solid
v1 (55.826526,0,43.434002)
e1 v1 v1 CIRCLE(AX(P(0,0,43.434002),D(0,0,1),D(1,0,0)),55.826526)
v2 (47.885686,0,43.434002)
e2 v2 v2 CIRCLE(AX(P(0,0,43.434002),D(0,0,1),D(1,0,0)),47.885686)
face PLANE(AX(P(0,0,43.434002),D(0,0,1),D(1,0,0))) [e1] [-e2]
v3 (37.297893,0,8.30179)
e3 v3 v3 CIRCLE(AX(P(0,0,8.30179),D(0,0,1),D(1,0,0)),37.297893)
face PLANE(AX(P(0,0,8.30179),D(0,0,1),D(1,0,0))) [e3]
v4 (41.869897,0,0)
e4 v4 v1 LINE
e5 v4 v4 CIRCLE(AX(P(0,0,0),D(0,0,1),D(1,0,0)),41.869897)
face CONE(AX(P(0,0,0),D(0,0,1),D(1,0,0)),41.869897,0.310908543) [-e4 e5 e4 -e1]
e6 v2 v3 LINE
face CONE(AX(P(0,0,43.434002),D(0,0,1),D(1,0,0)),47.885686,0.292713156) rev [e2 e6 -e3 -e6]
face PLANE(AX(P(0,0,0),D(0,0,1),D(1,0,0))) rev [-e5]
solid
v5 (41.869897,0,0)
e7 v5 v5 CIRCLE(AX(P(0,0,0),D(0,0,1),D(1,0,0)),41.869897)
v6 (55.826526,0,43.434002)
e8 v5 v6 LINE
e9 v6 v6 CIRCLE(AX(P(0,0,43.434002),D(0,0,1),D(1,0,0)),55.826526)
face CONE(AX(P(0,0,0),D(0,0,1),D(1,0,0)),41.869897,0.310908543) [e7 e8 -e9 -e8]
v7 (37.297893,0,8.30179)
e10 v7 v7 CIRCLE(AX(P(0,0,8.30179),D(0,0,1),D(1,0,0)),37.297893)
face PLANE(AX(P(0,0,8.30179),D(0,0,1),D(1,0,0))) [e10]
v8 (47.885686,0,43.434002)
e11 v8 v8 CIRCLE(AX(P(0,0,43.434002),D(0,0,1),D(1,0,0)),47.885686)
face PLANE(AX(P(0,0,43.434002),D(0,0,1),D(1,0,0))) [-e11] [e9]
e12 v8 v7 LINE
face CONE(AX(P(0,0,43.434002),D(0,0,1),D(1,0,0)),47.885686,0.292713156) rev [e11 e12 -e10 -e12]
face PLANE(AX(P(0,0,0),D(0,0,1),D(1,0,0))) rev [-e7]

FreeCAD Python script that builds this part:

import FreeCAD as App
import Part
import Sketcher
Q = App.Units.Quantity


def add_polygon(sketch, points):
    """Adds a closed chain of lines whose ends are joined by coincident constraints."""
    first, n = sketch.GeometryCount, len(points)
    for a, b in zip(points, points[1:] + points[:1]):
        sketch.addGeometry(Part.LineSegment(App.Vector(*a, 0), App.Vector(*b, 0)), False)
    for i in range(n):
        sketch.addConstraint(Sketcher.Constraint("Coincident", first + i, 2, first + (i + 1) % n, 1))

doc = App.newDocument("Part")
body = doc.addObject("PartDesign::Body", "Body")

# Sketch on XZ plane
sketch1 = doc.addObject("Sketcher::SketchObject", "Sketch")
body.addObject(sketch1)
sketch1.AttachmentSupport = (doc.XZ_Plane, [""])
sketch1.MapMode = "FlatFace"
add_polygon(sketch1, [(0, 8), (0, 0), (42, 0), (56, 43), (48, 43), (37, 8)])  # lines 0-5
sketch1.addConstraint([
    Sketcher.Constraint("Vertical", 0),
    Sketcher.Constraint("Horizontal", 1),
    Sketcher.Constraint("Horizontal", 3),
    Sketcher.Constraint("Horizontal", 5),
    Sketcher.Constraint("Coincident", 0, 2, -1, 1),
    Sketcher.Constraint("DistanceX", 3, 2, 3, 1, Q("7.94084 mm")),
    Sketcher.Constraint("DistanceY", 0, 2, 0, 1, Q("8.30179 mm")),
    Sketcher.Constraint("DistanceX", 1, 1, 1, 2, Q("41.869897 mm")),
    Sketcher.Constraint("DistanceX", 5, 2, 5, 1, Q("37.297893 mm")),
    Sketcher.Constraint("DistanceX", 1, 2, 2, 2, Q("13.956629 mm")),
    Sketcher.Constraint("DistanceY", 4, 2, 3, 2, Q("35.132212 mm")),
])
revolution = doc.addObject("PartDesign::Revolution", "Revolution")
body.addObject(revolution)
revolution.Profile = sketch1
revolution.ReferenceAxis = (sketch1, ["V_Axis"])
revolution.Angle = 360
body2 = doc.addObject("PartDesign::Body", "Body001")

# Sketch on XZ plane
sketch2 = doc.addObject("Sketcher::SketchObject", "Sketch001")
body2.addObject(sketch2)
sketch2.AttachmentSupport = (doc.getObject("XZ_Plane001"), [""])
sketch2.MapMode = "FlatFace"
add_polygon(sketch2, [(0, 8), (0, 0), (42, 0), (56, 43), (48, 43), (37, 8)])  # lines 0-5
sketch2.addConstraint([
    Sketcher.Constraint("Vertical", 0),
    Sketcher.Constraint("Horizontal", 1),
    Sketcher.Constraint("Horizontal", 3),
    Sketcher.Constraint("Horizontal", 5),
    Sketcher.Constraint("Coincident", 0, 2, -1, 1),
    Sketcher.Constraint("DistanceX", 3, 2, 3, 1, Q("7.94084 mm")),
    Sketcher.Constraint("DistanceY", 0, 2, 0, 1, Q("8.30179 mm")),
    Sketcher.Constraint("DistanceX", 1, 1, 1, 2, Q("41.869897 mm")),
    Sketcher.Constraint("DistanceX", 5, 2, 5, 1, Q("37.297893 mm")),
    Sketcher.Constraint("DistanceX", 1, 2, 2, 2, Q("13.956629 mm")),
    Sketcher.Constraint("DistanceY", 4, 2, 3, 2, Q("35.132212 mm")),
])
revolution2 = doc.addObject("PartDesign::Revolution", "Revolution001")
body2.addObject(revolution2)
revolution2.Profile = sketch2
revolution2.ReferenceAxis = (sketch2, ["V_Axis"])
revolution2.Angle = 360

doc.recompute()
